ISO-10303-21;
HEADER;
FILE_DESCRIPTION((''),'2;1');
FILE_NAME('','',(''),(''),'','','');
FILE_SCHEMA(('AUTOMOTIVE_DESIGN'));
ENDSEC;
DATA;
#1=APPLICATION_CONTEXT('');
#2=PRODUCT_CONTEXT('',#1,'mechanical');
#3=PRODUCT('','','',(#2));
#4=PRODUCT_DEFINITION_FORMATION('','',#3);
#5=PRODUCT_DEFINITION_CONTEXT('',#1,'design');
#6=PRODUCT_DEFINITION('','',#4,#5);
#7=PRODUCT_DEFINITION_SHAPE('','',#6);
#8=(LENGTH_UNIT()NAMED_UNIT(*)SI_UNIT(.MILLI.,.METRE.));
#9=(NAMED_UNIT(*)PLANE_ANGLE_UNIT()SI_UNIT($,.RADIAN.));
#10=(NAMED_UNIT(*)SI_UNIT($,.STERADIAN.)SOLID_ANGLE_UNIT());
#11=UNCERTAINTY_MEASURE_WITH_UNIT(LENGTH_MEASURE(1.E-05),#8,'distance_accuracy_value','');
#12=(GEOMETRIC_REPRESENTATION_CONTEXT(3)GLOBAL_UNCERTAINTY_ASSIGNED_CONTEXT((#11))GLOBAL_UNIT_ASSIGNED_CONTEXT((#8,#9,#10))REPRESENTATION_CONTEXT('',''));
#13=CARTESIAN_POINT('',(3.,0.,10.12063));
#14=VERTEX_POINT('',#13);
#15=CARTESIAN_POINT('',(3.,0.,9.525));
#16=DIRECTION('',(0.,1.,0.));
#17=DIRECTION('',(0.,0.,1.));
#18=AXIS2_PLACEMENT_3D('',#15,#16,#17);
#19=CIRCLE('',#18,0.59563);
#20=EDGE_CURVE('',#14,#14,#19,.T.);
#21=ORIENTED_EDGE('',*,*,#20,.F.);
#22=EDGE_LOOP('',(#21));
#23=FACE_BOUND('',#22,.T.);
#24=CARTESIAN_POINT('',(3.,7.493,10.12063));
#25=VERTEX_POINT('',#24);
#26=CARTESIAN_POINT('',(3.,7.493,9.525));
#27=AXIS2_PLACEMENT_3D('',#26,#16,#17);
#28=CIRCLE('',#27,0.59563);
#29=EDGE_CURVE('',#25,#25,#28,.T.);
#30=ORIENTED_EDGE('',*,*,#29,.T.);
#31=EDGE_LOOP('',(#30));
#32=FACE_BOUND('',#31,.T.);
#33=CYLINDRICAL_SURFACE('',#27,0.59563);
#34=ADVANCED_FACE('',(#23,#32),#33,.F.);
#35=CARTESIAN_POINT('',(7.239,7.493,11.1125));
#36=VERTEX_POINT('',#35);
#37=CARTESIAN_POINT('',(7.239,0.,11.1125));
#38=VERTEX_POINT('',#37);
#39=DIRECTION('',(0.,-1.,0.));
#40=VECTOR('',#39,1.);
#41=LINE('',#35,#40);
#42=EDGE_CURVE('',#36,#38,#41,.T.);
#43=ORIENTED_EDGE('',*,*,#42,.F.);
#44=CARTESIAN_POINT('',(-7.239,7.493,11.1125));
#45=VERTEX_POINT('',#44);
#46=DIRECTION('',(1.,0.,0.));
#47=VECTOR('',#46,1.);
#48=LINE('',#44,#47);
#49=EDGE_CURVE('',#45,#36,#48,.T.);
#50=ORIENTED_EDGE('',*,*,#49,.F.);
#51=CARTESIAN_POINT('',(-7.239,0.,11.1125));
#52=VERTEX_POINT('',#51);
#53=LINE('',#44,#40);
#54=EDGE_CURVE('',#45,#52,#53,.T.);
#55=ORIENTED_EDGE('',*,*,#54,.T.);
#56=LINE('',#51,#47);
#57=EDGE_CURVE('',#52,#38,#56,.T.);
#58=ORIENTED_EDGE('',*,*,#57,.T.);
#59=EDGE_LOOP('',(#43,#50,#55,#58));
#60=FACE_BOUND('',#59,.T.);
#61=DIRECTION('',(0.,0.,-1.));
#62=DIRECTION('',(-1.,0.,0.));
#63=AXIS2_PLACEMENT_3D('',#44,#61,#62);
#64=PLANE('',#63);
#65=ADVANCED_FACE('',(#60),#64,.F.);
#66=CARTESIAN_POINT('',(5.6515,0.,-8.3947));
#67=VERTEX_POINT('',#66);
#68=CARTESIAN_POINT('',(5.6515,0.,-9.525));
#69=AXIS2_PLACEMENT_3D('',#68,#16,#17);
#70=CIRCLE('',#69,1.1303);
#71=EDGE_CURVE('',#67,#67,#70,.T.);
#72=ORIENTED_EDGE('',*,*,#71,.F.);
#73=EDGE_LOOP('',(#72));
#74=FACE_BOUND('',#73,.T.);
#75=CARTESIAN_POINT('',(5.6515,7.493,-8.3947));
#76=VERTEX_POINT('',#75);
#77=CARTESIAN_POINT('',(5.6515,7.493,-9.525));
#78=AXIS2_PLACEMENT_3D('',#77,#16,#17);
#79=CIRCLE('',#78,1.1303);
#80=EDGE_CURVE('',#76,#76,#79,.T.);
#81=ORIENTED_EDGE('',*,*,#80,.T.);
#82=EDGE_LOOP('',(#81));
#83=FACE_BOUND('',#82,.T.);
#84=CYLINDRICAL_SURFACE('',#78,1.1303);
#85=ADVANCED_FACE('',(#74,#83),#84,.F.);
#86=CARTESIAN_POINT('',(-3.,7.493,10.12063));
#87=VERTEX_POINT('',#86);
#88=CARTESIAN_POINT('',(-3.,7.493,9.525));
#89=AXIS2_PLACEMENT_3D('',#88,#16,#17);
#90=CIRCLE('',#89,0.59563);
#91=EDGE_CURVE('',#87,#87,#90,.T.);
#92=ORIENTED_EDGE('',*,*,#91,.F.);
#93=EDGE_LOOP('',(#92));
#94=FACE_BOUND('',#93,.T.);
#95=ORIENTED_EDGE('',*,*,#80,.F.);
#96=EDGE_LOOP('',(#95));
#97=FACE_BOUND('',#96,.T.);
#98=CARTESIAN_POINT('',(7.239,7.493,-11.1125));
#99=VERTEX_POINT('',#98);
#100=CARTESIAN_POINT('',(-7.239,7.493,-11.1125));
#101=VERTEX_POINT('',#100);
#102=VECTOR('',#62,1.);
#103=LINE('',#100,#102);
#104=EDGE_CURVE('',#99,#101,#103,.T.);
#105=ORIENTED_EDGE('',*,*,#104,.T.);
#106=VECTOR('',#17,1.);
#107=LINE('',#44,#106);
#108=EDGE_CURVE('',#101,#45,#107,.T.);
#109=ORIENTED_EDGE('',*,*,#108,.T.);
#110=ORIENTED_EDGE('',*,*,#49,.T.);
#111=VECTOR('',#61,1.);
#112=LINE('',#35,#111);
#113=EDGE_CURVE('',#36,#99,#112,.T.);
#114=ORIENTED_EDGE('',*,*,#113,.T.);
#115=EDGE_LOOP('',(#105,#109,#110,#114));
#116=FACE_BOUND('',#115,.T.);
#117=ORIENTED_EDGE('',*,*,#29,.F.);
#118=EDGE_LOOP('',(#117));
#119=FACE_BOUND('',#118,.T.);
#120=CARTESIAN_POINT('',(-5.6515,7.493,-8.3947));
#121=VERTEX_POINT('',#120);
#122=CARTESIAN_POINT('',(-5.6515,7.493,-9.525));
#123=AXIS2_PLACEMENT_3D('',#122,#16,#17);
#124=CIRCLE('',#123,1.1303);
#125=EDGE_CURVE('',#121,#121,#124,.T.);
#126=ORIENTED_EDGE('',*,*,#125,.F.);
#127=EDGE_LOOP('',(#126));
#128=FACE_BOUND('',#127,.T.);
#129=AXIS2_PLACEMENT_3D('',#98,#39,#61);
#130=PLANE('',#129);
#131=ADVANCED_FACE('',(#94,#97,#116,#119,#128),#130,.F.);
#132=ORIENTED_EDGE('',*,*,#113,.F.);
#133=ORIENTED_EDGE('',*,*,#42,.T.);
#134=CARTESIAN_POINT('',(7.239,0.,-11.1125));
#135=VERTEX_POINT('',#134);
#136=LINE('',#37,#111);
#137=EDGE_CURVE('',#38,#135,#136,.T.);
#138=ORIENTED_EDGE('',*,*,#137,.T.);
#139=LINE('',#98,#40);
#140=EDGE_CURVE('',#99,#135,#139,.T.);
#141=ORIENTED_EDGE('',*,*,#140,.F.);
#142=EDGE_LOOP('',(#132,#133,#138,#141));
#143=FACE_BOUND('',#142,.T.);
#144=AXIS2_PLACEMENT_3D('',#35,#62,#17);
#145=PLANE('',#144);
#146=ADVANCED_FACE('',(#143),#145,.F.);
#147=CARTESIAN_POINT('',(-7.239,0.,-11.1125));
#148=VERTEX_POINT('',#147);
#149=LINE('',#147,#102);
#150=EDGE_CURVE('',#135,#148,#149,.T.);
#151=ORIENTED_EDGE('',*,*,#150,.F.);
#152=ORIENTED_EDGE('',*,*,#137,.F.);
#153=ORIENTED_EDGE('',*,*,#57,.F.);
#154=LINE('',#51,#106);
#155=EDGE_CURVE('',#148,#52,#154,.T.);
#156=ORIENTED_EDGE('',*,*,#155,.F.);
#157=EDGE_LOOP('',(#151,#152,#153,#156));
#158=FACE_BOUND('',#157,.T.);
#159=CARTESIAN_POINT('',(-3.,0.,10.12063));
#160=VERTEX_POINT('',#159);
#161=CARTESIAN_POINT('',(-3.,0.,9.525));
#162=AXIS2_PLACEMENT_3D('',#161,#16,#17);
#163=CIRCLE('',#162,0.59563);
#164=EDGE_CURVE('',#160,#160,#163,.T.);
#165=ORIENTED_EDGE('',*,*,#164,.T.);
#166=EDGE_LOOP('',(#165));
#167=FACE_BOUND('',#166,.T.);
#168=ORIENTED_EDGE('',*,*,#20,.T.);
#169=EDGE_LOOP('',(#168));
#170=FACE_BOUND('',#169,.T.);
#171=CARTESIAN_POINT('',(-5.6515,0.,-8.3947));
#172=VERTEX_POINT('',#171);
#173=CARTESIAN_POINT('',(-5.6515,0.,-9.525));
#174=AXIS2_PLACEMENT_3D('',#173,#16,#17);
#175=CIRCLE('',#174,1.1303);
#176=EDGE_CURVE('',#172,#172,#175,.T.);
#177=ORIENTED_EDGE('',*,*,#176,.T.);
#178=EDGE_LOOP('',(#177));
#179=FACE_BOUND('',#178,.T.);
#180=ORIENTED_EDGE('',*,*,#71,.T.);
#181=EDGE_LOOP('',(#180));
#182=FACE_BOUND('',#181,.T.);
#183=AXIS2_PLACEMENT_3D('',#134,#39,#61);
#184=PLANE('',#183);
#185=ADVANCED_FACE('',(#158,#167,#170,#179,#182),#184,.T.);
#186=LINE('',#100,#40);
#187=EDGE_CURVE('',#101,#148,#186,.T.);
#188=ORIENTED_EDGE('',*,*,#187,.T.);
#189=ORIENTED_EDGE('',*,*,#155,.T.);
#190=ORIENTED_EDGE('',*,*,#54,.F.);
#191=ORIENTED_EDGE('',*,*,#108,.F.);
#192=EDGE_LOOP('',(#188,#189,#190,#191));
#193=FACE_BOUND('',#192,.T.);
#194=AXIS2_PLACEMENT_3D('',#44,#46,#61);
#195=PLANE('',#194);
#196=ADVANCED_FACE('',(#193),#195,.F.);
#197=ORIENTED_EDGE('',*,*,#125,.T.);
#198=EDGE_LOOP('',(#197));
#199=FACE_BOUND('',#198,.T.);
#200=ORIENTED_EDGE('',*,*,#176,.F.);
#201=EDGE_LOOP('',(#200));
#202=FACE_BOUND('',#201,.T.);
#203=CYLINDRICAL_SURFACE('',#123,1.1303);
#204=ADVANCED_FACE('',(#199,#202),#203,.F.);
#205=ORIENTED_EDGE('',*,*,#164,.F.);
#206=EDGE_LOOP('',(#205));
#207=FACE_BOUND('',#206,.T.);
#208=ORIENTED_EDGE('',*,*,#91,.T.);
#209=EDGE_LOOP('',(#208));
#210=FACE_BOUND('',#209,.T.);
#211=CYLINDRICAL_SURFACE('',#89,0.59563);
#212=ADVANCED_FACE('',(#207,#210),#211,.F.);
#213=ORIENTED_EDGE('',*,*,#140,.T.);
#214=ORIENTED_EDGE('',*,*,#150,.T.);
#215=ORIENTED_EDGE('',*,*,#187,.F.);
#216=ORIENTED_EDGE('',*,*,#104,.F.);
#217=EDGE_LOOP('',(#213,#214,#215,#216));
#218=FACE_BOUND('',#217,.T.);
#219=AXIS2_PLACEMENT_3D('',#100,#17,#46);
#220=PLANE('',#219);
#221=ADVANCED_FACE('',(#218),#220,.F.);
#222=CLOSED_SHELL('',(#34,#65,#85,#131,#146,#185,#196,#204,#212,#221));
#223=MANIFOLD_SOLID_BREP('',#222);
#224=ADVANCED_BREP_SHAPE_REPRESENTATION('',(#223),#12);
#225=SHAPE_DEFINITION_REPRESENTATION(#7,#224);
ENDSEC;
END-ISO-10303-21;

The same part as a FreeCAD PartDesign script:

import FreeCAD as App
import Part
import Sketcher

V = App.Vector
Q = App.Units.Quantity


def add_polygon(sketch, points):
    """Adds a closed chain of lines whose ends are joined by coincident constraints."""
    first, n = sketch.GeometryCount, len(points)
    for a, b in zip(points, points[1:] + points[:1]):
        sketch.addGeometry(Part.LineSegment(App.Vector(*a, 0), App.Vector(*b, 0)), False)
    for i in range(n):
        sketch.addConstraint(Sketcher.Constraint("Coincident", first + i, 2, first + (i + 1) % n, 1))

doc = App.newDocument("Part")
params = doc.addObject("Spreadsheet::Sheet", "Params")
for row, (alias, value) in enumerate([
    ("sketch1_width", "0.57 in"),
    ("sketch1_height", "0.875 in"),
    ("pad1_length", "0.295 in"),
    ("hole_diameter", "0.0469 in"),
    ("sketch3_diameter", "0.089 in"),
    ("hole2_diameter", "0.089 in"),
], start=1):
    params.set(f"A{row}", alias)
    params.set(f"B{row}", "=" + value)
    params.setAlias(f"B{row}", alias)

body = doc.addObject("PartDesign::Body", "Body")

sketch1 = body.newObject("Sketcher::SketchObject", "Sketch")
sketch1.AttachmentSupport = (doc.getObject("XZ_Plane"), [""])
sketch1.MapMode = "FlatFace"
add_polygon(sketch1, [(-7.239, -11.1125), (-7.239, 11.1125), (7.239, 11.1125), (7.239, -11.1125)])
sketch1.addConstraint(Sketcher.Constraint("Vertical", 0))
sketch1.addConstraint(Sketcher.Constraint("Horizontal", 1))
sketch1.addConstraint(Sketcher.Constraint("Vertical", 2))
sketch1.addConstraint(Sketcher.Constraint("Horizontal", 3))
sketch1.addConstraint(Sketcher.Constraint("Symmetric", 0, 2, 2, 2, -1, 1))
sketch1.addConstraint(Sketcher.Constraint("DistanceX", 1, 1, 1, 2, Q("0.57 in")))
sketch1.addConstraint(Sketcher.Constraint("DistanceY", 0, 1, 0, 2, Q("0.875 in")))
sketch1.setExpression("Constraints[9]", "Params.sketch1_width")
sketch1.setExpression("Constraints[10]", "Params.sketch1_height")
pad1 = body.newObject("PartDesign::Pad", "Pad")
pad1.Profile = sketch1
pad1.setExpression("Length", "Params.pad1_length")
pad1.Reversed = True

sketch2 = body.newObject("Sketcher::SketchObject", "Sketch001")
sketch2.AttachmentSupport = (doc.getObject("XZ_Plane"), [""])
sketch2.MapMode = "FlatFace"
sketch2.AttachmentOffset = App.Placement(V(0, 0, -0.295 * 25.4), App.Rotation())
sketch2.addGeometry(Part.Circle(V(-3, 9.525, 0), V(0, 0, 1), 0.59563), False)
sketch2.addGeometry(Part.Circle(V(3, 9.525, 0), V(0, 0, 1), 0.59563), False)
sketch2.addConstraint(Sketcher.Constraint("Equal", 0, 1))
sketch2.addConstraint(Sketcher.Constraint("Symmetric", 0, 3, 1, 3, -2))
sketch2.addConstraint(Sketcher.Constraint("Diameter", 0, Q("0.0469 in")))
sketch2.addConstraint(Sketcher.Constraint("DistanceY", -1, 1, 0, 3, Q("0.375 in")))
sketch2.addConstraint(Sketcher.Constraint("DistanceX", 0, 3, -1, 1, 3.0))
doc.recompute()
hole = body.newObject("PartDesign::Hole", "Hole")
hole.Profile = sketch2
hole.ThreadType = "None"
hole.setExpression("Diameter", "Params.hole_diameter")
hole.DepthType = "ThroughAll"
hole.Reversed = True

sketch3 = body.newObject("Sketcher::SketchObject", "Sketch002")
sketch3.AttachmentSupport = (doc.getObject("XZ_Plane"), [""])
sketch3.MapMode = "FlatFace"
sketch3.AttachmentOffset = App.Placement(V(0, 0, -0.295 * 25.4), App.Rotation())
sketch3.addGeometry(Part.Circle(V(-5.6515, -9.525, 0), V(0, 0, 1), 1.1303), False)
sketch3.addGeometry(Part.Circle(V(5.6515, -9.525, 0), V(0, 0, 1), 1.1303), False)
sketch3.addConstraint(Sketcher.Constraint("Equal", 0, 1))
sketch3.addConstraint(Sketcher.Constraint("Symmetric", 0, 3, 1, 3, -2))
sketch3.addConstraint(Sketcher.Constraint("Diameter", 0, Q("0.089 in")))
sketch3.addConstraint(Sketcher.Constraint("DistanceY", 0, 3, -1, 1, Q("0.375 in")))
sketch3.addConstraint(Sketcher.Constraint("DistanceX", 0, 3, 1, 3, Q("0.445 in")))
sketch3.setExpression("Constraints[2]", "Params.sketch3_diameter")
doc.recompute()
hole2 = body.newObject("PartDesign::Hole", "Hole001")
hole2.Profile = sketch3
hole2.ThreadType = "None"
hole2.setExpression("Diameter", "Params.hole2_diameter")
hole2.DepthType = "ThroughAll"
hole2.Reversed = True

doc.recompute()
